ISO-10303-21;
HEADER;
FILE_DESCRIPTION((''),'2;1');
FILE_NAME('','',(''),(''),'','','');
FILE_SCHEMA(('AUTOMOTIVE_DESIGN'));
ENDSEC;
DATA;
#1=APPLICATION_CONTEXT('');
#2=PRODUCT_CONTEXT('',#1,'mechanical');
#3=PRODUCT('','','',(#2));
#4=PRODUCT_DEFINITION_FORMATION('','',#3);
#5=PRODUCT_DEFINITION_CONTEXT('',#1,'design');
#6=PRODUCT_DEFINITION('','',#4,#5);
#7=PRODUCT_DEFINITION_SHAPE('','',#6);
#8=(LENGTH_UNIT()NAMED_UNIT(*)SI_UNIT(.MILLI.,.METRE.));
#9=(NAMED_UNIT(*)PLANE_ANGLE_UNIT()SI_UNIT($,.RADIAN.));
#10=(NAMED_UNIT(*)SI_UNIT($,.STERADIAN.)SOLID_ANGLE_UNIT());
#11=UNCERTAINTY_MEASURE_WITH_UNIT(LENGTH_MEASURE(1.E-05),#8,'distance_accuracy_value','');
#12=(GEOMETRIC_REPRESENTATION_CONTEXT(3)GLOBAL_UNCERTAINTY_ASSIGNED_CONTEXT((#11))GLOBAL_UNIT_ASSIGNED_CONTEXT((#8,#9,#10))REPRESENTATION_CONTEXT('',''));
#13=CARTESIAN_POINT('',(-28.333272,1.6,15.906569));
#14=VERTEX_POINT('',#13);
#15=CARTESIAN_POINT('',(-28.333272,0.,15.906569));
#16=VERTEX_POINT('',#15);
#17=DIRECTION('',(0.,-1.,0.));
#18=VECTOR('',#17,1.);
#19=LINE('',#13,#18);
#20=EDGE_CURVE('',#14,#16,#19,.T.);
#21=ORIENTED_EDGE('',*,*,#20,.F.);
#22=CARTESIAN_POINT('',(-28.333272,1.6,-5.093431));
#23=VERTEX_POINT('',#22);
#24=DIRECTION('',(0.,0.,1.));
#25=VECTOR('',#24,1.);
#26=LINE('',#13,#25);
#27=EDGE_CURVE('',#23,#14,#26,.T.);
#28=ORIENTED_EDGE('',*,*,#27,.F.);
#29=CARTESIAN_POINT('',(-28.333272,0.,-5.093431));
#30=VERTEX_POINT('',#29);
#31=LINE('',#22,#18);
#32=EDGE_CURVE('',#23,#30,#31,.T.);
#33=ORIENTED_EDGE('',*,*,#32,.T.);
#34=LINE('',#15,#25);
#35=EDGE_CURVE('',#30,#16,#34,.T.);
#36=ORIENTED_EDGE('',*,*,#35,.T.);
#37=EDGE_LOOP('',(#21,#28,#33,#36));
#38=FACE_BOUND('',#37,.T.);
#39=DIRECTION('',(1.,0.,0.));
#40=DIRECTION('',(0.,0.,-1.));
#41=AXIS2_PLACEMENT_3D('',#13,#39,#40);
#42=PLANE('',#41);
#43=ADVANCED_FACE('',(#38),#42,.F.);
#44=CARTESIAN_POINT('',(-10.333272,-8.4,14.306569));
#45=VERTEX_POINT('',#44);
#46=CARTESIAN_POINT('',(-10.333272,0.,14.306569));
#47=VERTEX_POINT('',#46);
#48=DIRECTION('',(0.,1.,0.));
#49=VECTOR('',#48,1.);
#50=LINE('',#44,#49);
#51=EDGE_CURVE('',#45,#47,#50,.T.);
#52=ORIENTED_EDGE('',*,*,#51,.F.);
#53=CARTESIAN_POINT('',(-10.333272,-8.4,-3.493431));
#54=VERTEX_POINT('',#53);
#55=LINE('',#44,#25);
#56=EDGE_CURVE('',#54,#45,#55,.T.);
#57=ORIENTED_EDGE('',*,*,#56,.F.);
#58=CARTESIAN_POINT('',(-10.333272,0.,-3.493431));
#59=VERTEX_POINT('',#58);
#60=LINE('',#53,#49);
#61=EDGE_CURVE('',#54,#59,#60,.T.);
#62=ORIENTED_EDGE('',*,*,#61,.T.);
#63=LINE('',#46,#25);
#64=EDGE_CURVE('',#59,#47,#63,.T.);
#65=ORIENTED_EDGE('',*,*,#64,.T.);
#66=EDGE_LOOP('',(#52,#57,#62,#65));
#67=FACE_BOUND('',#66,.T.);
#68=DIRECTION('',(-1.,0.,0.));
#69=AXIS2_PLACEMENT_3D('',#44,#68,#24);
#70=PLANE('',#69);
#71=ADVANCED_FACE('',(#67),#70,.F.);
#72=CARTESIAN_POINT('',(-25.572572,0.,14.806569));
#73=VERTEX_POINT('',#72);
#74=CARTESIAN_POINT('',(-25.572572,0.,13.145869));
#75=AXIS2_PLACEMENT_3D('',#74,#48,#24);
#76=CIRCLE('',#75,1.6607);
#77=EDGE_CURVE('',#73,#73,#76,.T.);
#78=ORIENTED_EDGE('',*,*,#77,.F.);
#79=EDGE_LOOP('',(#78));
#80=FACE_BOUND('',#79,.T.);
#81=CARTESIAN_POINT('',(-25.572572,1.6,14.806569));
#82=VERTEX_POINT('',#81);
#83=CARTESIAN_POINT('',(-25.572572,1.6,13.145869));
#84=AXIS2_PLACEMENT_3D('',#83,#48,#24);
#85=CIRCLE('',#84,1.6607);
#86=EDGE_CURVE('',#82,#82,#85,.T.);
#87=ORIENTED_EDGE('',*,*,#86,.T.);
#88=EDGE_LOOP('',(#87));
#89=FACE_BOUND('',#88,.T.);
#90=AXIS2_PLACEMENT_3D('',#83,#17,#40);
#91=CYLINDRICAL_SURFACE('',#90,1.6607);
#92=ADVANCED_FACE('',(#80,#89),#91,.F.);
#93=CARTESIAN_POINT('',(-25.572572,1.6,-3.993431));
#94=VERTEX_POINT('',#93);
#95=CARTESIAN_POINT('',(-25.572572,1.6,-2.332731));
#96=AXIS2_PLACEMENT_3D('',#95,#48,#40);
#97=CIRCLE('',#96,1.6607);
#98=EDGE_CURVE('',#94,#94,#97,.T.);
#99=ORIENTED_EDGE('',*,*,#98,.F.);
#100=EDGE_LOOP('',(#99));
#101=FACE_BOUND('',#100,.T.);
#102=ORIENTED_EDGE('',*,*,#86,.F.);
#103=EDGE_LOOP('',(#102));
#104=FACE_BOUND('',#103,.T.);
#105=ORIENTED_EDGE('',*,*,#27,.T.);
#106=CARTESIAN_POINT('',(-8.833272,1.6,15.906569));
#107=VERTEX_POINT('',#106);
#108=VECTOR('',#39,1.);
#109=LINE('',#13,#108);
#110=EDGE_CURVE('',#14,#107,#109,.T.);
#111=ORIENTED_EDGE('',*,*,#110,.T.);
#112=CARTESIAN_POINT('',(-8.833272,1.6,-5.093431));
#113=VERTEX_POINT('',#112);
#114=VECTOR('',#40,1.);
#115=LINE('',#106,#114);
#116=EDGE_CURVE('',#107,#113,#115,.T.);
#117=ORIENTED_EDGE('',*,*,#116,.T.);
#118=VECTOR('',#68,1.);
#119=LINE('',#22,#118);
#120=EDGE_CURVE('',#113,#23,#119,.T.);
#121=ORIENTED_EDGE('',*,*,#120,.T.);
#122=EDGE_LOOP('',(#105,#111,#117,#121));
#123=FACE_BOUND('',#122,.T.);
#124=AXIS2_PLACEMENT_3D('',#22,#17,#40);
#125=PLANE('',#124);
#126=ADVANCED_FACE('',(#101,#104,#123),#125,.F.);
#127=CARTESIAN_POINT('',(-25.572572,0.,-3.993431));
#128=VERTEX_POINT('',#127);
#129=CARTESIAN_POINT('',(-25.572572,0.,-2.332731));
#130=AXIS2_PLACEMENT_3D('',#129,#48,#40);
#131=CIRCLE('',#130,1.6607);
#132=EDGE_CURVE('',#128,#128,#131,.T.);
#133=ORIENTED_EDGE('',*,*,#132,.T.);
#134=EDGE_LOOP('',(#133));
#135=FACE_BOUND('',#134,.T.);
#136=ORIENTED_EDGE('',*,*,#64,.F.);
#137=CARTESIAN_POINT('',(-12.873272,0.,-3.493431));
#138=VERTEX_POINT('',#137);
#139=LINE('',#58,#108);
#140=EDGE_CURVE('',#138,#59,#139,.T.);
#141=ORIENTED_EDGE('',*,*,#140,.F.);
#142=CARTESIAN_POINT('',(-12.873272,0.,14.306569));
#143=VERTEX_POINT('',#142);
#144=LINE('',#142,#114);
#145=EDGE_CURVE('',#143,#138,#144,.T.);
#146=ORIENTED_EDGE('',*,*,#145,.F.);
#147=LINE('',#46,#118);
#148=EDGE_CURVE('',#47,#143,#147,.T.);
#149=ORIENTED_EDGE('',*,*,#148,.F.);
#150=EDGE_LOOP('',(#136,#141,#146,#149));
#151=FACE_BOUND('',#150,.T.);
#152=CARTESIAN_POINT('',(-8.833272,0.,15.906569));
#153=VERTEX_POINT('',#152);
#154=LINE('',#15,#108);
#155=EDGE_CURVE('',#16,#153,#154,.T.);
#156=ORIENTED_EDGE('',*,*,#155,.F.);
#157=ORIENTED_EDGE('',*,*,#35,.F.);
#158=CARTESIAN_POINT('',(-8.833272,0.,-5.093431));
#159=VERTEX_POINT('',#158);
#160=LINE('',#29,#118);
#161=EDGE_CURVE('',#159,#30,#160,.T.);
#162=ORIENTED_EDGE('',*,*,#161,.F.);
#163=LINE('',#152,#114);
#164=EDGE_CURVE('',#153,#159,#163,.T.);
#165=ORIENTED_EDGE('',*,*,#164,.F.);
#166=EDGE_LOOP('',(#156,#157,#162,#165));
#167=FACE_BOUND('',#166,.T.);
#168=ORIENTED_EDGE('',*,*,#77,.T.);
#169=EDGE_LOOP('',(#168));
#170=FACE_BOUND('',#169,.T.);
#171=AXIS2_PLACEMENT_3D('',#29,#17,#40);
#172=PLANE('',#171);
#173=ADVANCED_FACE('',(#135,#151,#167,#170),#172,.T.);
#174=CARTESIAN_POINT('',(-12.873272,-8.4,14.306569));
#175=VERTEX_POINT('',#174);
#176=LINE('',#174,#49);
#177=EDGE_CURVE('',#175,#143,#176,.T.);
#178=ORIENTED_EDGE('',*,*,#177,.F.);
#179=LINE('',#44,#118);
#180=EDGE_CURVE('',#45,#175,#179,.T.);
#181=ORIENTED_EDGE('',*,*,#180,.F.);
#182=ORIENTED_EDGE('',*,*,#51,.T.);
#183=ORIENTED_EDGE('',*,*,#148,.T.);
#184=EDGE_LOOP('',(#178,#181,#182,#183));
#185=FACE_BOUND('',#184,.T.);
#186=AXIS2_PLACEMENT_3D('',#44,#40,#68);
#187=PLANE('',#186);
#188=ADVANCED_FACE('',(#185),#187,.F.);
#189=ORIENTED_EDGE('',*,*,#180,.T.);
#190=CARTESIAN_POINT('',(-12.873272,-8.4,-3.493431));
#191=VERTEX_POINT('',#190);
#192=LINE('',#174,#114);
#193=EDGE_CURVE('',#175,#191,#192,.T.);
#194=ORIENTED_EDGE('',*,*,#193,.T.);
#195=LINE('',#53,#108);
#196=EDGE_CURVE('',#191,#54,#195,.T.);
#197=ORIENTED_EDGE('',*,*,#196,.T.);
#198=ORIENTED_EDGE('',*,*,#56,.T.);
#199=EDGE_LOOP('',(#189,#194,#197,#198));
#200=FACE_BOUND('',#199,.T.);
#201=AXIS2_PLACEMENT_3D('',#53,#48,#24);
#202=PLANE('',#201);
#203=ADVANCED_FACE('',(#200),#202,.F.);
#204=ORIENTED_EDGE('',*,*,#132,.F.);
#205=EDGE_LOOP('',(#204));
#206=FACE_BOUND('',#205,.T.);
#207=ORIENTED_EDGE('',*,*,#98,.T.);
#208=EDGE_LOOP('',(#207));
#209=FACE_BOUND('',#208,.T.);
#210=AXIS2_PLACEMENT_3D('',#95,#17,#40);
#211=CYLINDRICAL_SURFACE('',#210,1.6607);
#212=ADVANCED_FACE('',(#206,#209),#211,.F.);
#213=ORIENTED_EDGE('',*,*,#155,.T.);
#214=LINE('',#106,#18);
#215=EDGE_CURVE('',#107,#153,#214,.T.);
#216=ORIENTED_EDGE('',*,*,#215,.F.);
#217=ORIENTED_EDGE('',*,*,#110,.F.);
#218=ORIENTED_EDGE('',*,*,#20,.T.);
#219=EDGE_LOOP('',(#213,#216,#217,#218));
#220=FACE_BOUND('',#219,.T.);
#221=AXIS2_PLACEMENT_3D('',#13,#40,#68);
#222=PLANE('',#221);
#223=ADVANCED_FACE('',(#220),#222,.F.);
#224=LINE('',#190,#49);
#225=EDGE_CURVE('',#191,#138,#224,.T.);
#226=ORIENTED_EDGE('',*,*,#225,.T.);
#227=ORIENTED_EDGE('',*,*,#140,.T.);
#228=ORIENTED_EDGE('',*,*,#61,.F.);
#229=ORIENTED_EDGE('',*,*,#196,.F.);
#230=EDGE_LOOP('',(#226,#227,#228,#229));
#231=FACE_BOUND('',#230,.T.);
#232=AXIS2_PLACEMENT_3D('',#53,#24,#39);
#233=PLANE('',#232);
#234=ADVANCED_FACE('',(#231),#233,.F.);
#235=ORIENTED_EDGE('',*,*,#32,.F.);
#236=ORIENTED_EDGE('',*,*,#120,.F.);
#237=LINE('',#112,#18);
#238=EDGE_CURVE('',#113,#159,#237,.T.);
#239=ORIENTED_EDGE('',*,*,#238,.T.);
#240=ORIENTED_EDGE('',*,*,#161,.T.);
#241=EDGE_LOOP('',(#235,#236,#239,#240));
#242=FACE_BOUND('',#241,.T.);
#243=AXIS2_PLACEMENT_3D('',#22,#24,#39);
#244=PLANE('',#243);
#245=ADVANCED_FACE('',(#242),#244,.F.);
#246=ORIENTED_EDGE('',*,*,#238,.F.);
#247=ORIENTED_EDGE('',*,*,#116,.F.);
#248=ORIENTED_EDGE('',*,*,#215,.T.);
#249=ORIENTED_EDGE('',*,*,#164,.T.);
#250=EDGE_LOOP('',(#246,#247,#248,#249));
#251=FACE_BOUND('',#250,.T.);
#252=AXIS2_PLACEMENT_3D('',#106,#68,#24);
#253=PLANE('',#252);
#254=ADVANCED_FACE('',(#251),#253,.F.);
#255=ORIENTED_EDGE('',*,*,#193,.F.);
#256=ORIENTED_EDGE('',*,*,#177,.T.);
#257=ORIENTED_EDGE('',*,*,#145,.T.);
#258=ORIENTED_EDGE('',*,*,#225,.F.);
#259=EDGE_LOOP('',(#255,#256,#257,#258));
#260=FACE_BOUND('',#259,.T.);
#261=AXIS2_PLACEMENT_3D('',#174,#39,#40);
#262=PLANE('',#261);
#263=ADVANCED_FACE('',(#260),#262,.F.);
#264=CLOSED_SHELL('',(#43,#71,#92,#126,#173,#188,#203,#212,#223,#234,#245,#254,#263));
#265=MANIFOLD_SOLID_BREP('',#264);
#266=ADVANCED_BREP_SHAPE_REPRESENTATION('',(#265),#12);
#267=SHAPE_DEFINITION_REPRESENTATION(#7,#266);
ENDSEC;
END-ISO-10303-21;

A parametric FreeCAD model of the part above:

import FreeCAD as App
import Part
import Sketcher

V = App.Vector
Q = App.Units.Quantity

doc = App.newDocument("Part")
body = doc.addObject("PartDesign::Body", "Body")

sketch1 = body.newObject("Sketcher::SketchObject", "Sketch")
sketch1.AttachmentSupport = (doc.getObject("XZ_Plane"), [""])
sketch1.MapMode = "FlatFace"
sketch1.addGeometry([
    Part.LineSegment(V(-28.3, -5.1, 0), V(-28.3, 15.9, 0)),
    Part.LineSegment(V(-28.3, 15.9, 0), V(-8.8, 15.9, 0)),
    Part.LineSegment(V(-8.8, 15.9, 0), V(-8.8, -5.1, 0)),
    Part.LineSegment(V(-8.8, -5.1, 0), V(-28.3, -5.1, 0)),
    Part.Circle(V(-25.6, 13.1, 0), V(0, 0, 1), 1.7),
    Part.Circle(V(-25.6, -2.3, 0), V(0, 0, 1), 1.7),
], False)
sketch1.addConstraint([
    Sketcher.Constraint("Coincident", 0, 2, 1, 1),
    Sketcher.Constraint("Coincident", 1, 2, 2, 1),
    Sketcher.Constraint("Coincident", 2, 2, 3, 1),
    Sketcher.Constraint("Coincident", 3, 2, 0, 1),
    Sketcher.Constraint("Vertical", 0),
    Sketcher.Constraint("Horizontal", 1),
    Sketcher.Constraint("Vertical", 2),
    Sketcher.Constraint("Horizontal", 3),
    Sketcher.Constraint("Equal", 4, 5),
    Sketcher.Constraint("Vertical", 4, 3, 5, 3),
    Sketcher.Constraint("DistanceY", 0, 1, 0, 2, Q("21 mm")),
    Sketcher.Constraint("DistanceX", 1, 1, 1, 2, Q("19.5 mm")),
    Sketcher.Constraint("Diameter", 4, Q("3.3214 mm")),
    Sketcher.Constraint("DistanceY", 5, 3, 4, 3, Q("15.4786 mm")),
    Sketcher.Constraint("DistanceX", 0, 2, 4, 3, Q("2.7607 mm")),
    Sketcher.Constraint("DistanceY", 4, 3, 0, 2, Q("2.7607 mm")),
    Sketcher.Constraint("DistanceY", -1, 1, 4, 3, Q("13.145869 mm")),
    Sketcher.Constraint("DistanceX", 4, 3, -1, 1, Q("25.572572 mm")),
])
pad1 = body.newObject("PartDesign::Pad", "Pad")
pad1.Profile = sketch1
pad1.Length = 1.6
pad1.Reversed = True

sketch2 = body.newObject("Sketcher::SketchObject", "Sketch001")
sketch2.AttachmentSupport = (doc.getObject("XZ_Plane"), [""])
sketch2.MapMode = "FlatFace"
sketch2.addGeometry([
    Part.LineSegment(V(-12.9, 14.3, 0), V(-12.9, -3.5, 0)),
    Part.LineSegment(V(-12.9, -3.5, 0), V(-10.3, -3.5, 0)),
    Part.LineSegment(V(-10.3, -3.5, 0), V(-10.3, 14.3, 0)),
    Part.LineSegment(V(-10.3, 14.3, 0), V(-12.9, 14.3, 0)),
], False)
sketch2.addConstraint([
    Sketcher.Constraint("Coincident", 0, 2, 1, 1),
    Sketcher.Constraint("Coincident", 1, 2, 2, 1),
    Sketcher.Constraint("Coincident", 2, 2, 3, 1),
    Sketcher.Constraint("Coincident", 3, 2, 0, 1),
    Sketcher.Constraint("Vertical", 0),
    Sketcher.Constraint("Horizontal", 1),
    Sketcher.Constraint("Vertical", 2),
    Sketcher.Constraint("Horizontal", 3),
    Sketcher.Constraint("DistanceY", 0, 2, 0, 1, Q("17.8 mm")),
    Sketcher.Constraint("DistanceX", 1, 1, 1, 2, Q("2.54 mm")),
    Sketcher.Constraint("DistanceY", 0, 2, -1, 1, Q("3.493431 mm")),
    Sketcher.Constraint("DistanceX", 0, 2, -1, 1, Q("12.873272 mm")),
])
pad2 = body.newObject("PartDesign::Pad", "Pad001")
pad2.Profile = sketch2
pad2.Length = 8.4

doc.recompute()
